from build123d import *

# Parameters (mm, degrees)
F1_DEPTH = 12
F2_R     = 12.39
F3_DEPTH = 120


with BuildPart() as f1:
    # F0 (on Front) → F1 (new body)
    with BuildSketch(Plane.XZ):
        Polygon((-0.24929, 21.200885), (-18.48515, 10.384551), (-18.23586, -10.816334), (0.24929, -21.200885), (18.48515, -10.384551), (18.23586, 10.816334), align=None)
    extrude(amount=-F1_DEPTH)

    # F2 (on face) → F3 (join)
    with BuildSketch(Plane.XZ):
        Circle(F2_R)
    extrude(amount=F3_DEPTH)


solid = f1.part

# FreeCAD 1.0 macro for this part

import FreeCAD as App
import Part
import Sketcher
from FreeCAD import Vector
Q = App.Units.Quantity

doc = App.newDocument("Part")
body = doc.addObject("PartDesign::Body", "Body")

# Sketch on XZ plane
sketch1 = body.newObject("Sketcher::SketchObject", "Sketch")
sketch1.AttachmentSupport = (doc.getObject("XZ_Plane"), [""])
sketch1.MapMode = "FlatFace"
sketch1.addGeometry([
    Part.LineSegment(Vector(0, 21, 0), Vector(-18, 10, 0)),  # 0
    Part.LineSegment(Vector(-18, 10, 0), Vector(-18, -11, 0)),  # 1
    Part.LineSegment(Vector(-18, -11, 0), Vector(0, -21, 0)),  # 2
    Part.LineSegment(Vector(0, -21, 0), Vector(18, -10, 0)),  # 3
    Part.LineSegment(Vector(18, -10, 0), Vector(18, 11, 0)),  # 4
    Part.LineSegment(Vector(18, 11, 0), Vector(0, 21, 0)),  # 5
], False)
sketch1.addConstraint([
    Sketcher.Constraint("Coincident", 0, 2, 1, 1),
    Sketcher.Constraint("Coincident", 1, 2, 2, 1),
    Sketcher.Constraint("Coincident", 2, 2, 3, 1),
    Sketcher.Constraint("Coincident", 3, 2, 4, 1),
    Sketcher.Constraint("Coincident", 4, 2, 5, 1),
    Sketcher.Constraint("Coincident", 5, 2, 0, 1),
    Sketcher.Constraint("Symmetric", 0, 2, 3, 2, -1, 1),
    Sketcher.Constraint("Symmetric", 1, 2, 4, 2, -1, 1),
    Sketcher.Constraint("Symmetric", 2, 2, 5, 2, -1, 1),
    Sketcher.Constraint("Equal", 0, 1),
    Sketcher.Constraint("Equal", 1, 2),
    Sketcher.Constraint("DistanceX", 0, 2, 3, 2, Q("36.9703 mm")),
    Sketcher.Constraint("DistanceY", 3, 2, 0, 2, Q("20.769102 mm")),
    Sketcher.Constraint("Distance", 0, Q("21.202351 mm")),
    Sketcher.Constraint("DistanceX", 1, 2, -1, 1, Q("18.23586 mm")),
])
pad1 = body.newObject("PartDesign::Pad", "Pad")
pad1.Profile = sketch1
pad1.Length = 12
pad1.Reversed = True

# Sketch on XZ plane
sketch2 = body.newObject("Sketcher::SketchObject", "Sketch001")
sketch2.AttachmentSupport = (doc.getObject("XZ_Plane"), [""])
sketch2.MapMode = "FlatFace"
sketch2.addGeometry(Part.Circle(Vector(0, 0, 0), Vector(0, 0, 1), 12), False)
sketch2.addConstraint([
    Sketcher.Constraint("Coincident", 0, 3, -1, 1),
    Sketcher.Constraint("Diameter", 0, Q("24.78 mm")),
])
pad2 = body.newObject("PartDesign::Pad", "Pad001")
pad2.Profile = sketch2
pad2.Length = 120

doc.recompute()
